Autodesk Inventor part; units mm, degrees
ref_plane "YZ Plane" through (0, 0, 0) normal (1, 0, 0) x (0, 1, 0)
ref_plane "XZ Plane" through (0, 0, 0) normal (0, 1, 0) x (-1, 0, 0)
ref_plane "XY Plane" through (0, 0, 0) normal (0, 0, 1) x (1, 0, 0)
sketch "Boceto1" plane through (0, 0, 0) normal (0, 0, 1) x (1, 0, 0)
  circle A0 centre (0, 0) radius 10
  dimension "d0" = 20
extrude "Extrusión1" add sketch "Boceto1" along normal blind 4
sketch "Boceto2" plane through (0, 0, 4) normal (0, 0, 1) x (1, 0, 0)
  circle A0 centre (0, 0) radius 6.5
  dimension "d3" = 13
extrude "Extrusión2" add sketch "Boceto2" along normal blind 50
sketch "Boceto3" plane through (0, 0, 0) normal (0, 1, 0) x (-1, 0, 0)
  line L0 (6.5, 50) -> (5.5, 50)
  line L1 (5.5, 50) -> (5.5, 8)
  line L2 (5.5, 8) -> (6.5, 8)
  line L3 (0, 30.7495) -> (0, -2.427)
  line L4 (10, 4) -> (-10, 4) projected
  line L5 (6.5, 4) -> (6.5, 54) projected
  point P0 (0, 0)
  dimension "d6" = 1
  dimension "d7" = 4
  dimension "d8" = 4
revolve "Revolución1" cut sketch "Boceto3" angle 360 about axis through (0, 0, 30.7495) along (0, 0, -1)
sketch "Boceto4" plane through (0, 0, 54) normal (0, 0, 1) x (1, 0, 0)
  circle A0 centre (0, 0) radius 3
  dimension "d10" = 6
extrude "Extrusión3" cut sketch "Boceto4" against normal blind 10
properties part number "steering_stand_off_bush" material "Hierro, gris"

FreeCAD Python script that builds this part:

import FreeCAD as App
import Part
import Sketcher


def add_polygon(sketch, points):
    """Adds a closed chain of lines whose ends are joined by coincident constraints."""
    first, n = sketch.GeometryCount, len(points)
    for a, b in zip(points, points[1:] + points[:1]):
        sketch.addGeometry(Part.LineSegment(App.Vector(*a, 0), App.Vector(*b, 0)), False)
    for i in range(n):
        sketch.addConstraint(Sketcher.Constraint("Coincident", first + i, 2, first + (i + 1) % n, 1))

doc = App.newDocument("Part")
params = doc.addObject("Spreadsheet::Sheet", "Params")
for row, (alias, value) in enumerate([
    ("sketch1_diameter", "20 mm"),
    ("pad1_length", "4 mm"),
    ("sketch2_diameter", "13 mm"),
    ("pad2_length", "50 mm"),
    ("sketch3_width", "1 mm"),
    ("sketch3_height", "42 mm"),
    ("groove_angle", "360 deg"),
    ("sketch4_diameter", "6 mm"),
    ("pocket1_length", "10 mm"),
], start=1):
    params.set(f"A{row}", alias)
    params.set(f"B{row}", "=" + value)
    params.setAlias(f"B{row}", alias)

body = doc.addObject("PartDesign::Body", "Body")

sketch1 = body.newObject("Sketcher::SketchObject", "Sketch")
sketch1.AttachmentSupport = (doc.getObject("XY_Plane"), [""])
sketch1.MapMode = "FlatFace"
sketch1.addGeometry(Part.Circle(App.Vector(0, 0, 0), App.Vector(0, 0, 1), 10), False)
sketch1.addConstraint([
    Sketcher.Constraint("Coincident", 0, 3, -1, 1),
    Sketcher.Constraint("Diameter", 0, 20.0),
])
sketch1.setExpression("Constraints[1]", "Params.sketch1_diameter")
pad1 = body.newObject("PartDesign::Pad", "Pad")
pad1.Profile = sketch1
pad1.setExpression("Length", "Params.pad1_length")

sketch2 = body.newObject("Sketcher::SketchObject", "Sketch001")
sketch2.AttachmentSupport = (doc.getObject("XY_Plane"), [""])
sketch2.MapMode = "FlatFace"
sketch2.AttachmentOffset = App.Placement(App.Vector(0, 0, 4), App.Rotation())
sketch2.addGeometry(Part.Circle(App.Vector(0, 0, 0), App.Vector(0, 0, 1), 6), False)
sketch2.addConstraint([
    Sketcher.Constraint("Coincident", 0, 3, -1, 1),
    Sketcher.Constraint("Diameter", 0, 13.0),
])
sketch2.setExpression("Constraints[1]", "Params.sketch2_diameter")
pad2 = body.newObject("PartDesign::Pad", "Pad001")
pad2.Profile = sketch2
pad2.setExpression("Length", "Params.pad2_length")

sketch3 = body.newObject("Sketcher::SketchObject", "Sketch002")
sketch3.AttachmentSupport = (doc.getObject("XZ_Plane"), [""])
sketch3.MapMode = "FlatFace"
add_polygon(sketch3, [(-6.5, 8), (-6.5, 50), (-5.5, 50), (-5.5, 8)])
sketch3.addConstraint([
    Sketcher.Constraint("Vertical", 0),
    Sketcher.Constraint("Horizontal", 1),
    Sketcher.Constraint("Vertical", 2),
    Sketcher.Constraint("Horizontal", 3),
    Sketcher.Constraint("DistanceX", 1, 1, 1, 2, 1.0),
    Sketcher.Constraint("DistanceY", 0, 1, 0, 2, 42.0),
    Sketcher.Constraint("DistanceY", -1, 1, 0, 2, 50.0),
    Sketcher.Constraint("DistanceX", 0, 2, -1, 1, 6.5),
])
sketch3.setExpression("Constraints[8]", "Params.sketch3_width")
sketch3.setExpression("Constraints[9]", "Params.sketch3_height")
groove = body.newObject("PartDesign::Groove", "Groove")
groove.Profile = sketch3
groove.ReferenceAxis = (sketch3, ["V_Axis"])
groove.setExpression("Angle", "Params.groove_angle")

sketch4 = body.newObject("Sketcher::SketchObject", "Sketch003")
sketch4.AttachmentSupport = (doc.getObject("XY_Plane"), [""])
sketch4.MapMode = "FlatFace"
sketch4.AttachmentOffset = App.Placement(App.Vector(0, 0, 54), App.Rotation())
sketch4.addGeometry(Part.Circle(App.Vector(0, 0, 0), App.Vector(0, 0, 1), 3), False)
sketch4.addConstraint([
    Sketcher.Constraint("Coincident", 0, 3, -1, 1),
    Sketcher.Constraint("Diameter", 0, 6.0),
])
sketch4.setExpression("Constraints[1]", "Params.sketch4_diameter")
pocket1 = body.newObject("PartDesign::Pocket", "Pocket")
pocket1.Profile = sketch4
pocket1.setExpression("Length", "Params.pocket1_length")

doc.recompute()
